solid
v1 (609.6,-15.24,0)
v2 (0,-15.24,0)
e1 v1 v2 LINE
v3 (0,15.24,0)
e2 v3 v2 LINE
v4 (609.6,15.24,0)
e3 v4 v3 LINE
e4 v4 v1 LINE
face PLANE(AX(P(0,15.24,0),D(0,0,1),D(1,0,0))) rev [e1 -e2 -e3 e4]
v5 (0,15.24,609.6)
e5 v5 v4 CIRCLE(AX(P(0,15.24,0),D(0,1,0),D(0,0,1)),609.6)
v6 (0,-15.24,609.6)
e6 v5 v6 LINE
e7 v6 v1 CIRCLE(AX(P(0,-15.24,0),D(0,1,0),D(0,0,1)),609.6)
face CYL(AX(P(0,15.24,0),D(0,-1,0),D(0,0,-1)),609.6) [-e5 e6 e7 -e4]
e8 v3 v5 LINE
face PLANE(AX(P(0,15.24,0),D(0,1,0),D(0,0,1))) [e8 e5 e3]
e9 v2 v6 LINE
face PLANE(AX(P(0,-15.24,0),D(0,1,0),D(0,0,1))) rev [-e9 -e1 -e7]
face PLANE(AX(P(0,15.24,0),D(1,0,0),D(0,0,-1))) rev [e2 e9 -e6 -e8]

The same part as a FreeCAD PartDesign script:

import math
import FreeCAD as App
import Part
import Sketcher
Q = App.Units.Quantity

doc = App.newDocument("Part")
body = doc.addObject("PartDesign::Body", "Body")

# Sketch on XZ plane
sketch1 = doc.addObject("Sketcher::SketchObject", "Sketch")
body.addObject(sketch1)
sketch1.AttachmentSupport = (doc.XZ_Plane, [""])
sketch1.MapMode = "FlatFace"
sketch1.addGeometry([
    Part.LineSegment(App.Vector(610, 0, 0), App.Vector(0, 0, 0)),
    Part.LineSegment(App.Vector(0, 0, 0), App.Vector(0, 610, 0)),
    Part.ArcOfCircle(Part.Circle(App.Vector(0, 0, 0), App.Vector(0, 0, 1), 610), math.radians(0), math.radians(90)),
], False)
sketch1.addConstraint([
    Sketcher.Constraint("Coincident", 0, 2, 1, 1),
    Sketcher.Constraint("Coincident", 1, 2, 2, 2),
    Sketcher.Constraint("Coincident", 2, 1, 0, 1),
    Sketcher.Constraint("Horizontal", 0),
    Sketcher.Constraint("Vertical", 1),
    Sketcher.Constraint("Coincident", 2, 3, -1, 1),
    Sketcher.Constraint("Coincident", 0, 2, -1, 1),
    Sketcher.Constraint("Radius", 2, Q("24 in")),
])
pad1 = doc.addObject("PartDesign::Pad", "Pad")
body.addObject(pad1)
pad1.Profile = sketch1
pad1.Length = Q("1.2 in")
pad1.Midplane = True

doc.recompute()
